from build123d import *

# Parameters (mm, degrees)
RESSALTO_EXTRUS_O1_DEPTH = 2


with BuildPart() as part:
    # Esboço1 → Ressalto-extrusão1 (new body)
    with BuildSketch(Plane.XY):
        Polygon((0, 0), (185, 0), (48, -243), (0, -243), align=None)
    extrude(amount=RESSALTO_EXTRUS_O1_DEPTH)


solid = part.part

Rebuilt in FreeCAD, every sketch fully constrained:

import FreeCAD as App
import Part
import Sketcher
from FreeCAD import Vector


def add_polygon(sketch, points):
    """Adds a closed chain of lines whose ends are joined by coincident constraints."""
    first, n = sketch.GeometryCount, len(points)
    for a, b in zip(points, points[1:] + points[:1]):
        sketch.addGeometry(Part.LineSegment(App.Vector(*a, 0), App.Vector(*b, 0)), False)
    for i in range(n):
        sketch.addConstraint(Sketcher.Constraint("Coincident", first + i, 2, first + (i + 1) % n, 1))

doc = App.newDocument("Part")
body = doc.addObject("PartDesign::Body", "Body")

sketch1 = body.newObject("Sketcher::SketchObject", "Sketch")
sketch1.AttachmentSupport = (doc.getObject("XY_Plane"), [""])
sketch1.MapMode = "FlatFace"
add_polygon(sketch1, [(185, 0), (0, 0), (0, -243), (48, -243)])
sketch1.addConstraint([
    Sketcher.Constraint("Horizontal", 0),
    Sketcher.Constraint("Vertical", 1),
    Sketcher.Constraint("Horizontal", 2),
    Sketcher.Constraint("Coincident", 0, 2, -1, 1),
    Sketcher.Constraint("DistanceX", 0, 2, 0, 1, 185.0),
    Sketcher.Constraint("DistanceX", 2, 1, 2, 2, 48.0),
    Sketcher.Constraint("DistanceY", 1, 2, 1, 1, 243.0),
])
pad1 = body.newObject("PartDesign::Pad", "Pad")
pad1.Profile = sketch1
pad1.Length = 2

doc.recompute()
